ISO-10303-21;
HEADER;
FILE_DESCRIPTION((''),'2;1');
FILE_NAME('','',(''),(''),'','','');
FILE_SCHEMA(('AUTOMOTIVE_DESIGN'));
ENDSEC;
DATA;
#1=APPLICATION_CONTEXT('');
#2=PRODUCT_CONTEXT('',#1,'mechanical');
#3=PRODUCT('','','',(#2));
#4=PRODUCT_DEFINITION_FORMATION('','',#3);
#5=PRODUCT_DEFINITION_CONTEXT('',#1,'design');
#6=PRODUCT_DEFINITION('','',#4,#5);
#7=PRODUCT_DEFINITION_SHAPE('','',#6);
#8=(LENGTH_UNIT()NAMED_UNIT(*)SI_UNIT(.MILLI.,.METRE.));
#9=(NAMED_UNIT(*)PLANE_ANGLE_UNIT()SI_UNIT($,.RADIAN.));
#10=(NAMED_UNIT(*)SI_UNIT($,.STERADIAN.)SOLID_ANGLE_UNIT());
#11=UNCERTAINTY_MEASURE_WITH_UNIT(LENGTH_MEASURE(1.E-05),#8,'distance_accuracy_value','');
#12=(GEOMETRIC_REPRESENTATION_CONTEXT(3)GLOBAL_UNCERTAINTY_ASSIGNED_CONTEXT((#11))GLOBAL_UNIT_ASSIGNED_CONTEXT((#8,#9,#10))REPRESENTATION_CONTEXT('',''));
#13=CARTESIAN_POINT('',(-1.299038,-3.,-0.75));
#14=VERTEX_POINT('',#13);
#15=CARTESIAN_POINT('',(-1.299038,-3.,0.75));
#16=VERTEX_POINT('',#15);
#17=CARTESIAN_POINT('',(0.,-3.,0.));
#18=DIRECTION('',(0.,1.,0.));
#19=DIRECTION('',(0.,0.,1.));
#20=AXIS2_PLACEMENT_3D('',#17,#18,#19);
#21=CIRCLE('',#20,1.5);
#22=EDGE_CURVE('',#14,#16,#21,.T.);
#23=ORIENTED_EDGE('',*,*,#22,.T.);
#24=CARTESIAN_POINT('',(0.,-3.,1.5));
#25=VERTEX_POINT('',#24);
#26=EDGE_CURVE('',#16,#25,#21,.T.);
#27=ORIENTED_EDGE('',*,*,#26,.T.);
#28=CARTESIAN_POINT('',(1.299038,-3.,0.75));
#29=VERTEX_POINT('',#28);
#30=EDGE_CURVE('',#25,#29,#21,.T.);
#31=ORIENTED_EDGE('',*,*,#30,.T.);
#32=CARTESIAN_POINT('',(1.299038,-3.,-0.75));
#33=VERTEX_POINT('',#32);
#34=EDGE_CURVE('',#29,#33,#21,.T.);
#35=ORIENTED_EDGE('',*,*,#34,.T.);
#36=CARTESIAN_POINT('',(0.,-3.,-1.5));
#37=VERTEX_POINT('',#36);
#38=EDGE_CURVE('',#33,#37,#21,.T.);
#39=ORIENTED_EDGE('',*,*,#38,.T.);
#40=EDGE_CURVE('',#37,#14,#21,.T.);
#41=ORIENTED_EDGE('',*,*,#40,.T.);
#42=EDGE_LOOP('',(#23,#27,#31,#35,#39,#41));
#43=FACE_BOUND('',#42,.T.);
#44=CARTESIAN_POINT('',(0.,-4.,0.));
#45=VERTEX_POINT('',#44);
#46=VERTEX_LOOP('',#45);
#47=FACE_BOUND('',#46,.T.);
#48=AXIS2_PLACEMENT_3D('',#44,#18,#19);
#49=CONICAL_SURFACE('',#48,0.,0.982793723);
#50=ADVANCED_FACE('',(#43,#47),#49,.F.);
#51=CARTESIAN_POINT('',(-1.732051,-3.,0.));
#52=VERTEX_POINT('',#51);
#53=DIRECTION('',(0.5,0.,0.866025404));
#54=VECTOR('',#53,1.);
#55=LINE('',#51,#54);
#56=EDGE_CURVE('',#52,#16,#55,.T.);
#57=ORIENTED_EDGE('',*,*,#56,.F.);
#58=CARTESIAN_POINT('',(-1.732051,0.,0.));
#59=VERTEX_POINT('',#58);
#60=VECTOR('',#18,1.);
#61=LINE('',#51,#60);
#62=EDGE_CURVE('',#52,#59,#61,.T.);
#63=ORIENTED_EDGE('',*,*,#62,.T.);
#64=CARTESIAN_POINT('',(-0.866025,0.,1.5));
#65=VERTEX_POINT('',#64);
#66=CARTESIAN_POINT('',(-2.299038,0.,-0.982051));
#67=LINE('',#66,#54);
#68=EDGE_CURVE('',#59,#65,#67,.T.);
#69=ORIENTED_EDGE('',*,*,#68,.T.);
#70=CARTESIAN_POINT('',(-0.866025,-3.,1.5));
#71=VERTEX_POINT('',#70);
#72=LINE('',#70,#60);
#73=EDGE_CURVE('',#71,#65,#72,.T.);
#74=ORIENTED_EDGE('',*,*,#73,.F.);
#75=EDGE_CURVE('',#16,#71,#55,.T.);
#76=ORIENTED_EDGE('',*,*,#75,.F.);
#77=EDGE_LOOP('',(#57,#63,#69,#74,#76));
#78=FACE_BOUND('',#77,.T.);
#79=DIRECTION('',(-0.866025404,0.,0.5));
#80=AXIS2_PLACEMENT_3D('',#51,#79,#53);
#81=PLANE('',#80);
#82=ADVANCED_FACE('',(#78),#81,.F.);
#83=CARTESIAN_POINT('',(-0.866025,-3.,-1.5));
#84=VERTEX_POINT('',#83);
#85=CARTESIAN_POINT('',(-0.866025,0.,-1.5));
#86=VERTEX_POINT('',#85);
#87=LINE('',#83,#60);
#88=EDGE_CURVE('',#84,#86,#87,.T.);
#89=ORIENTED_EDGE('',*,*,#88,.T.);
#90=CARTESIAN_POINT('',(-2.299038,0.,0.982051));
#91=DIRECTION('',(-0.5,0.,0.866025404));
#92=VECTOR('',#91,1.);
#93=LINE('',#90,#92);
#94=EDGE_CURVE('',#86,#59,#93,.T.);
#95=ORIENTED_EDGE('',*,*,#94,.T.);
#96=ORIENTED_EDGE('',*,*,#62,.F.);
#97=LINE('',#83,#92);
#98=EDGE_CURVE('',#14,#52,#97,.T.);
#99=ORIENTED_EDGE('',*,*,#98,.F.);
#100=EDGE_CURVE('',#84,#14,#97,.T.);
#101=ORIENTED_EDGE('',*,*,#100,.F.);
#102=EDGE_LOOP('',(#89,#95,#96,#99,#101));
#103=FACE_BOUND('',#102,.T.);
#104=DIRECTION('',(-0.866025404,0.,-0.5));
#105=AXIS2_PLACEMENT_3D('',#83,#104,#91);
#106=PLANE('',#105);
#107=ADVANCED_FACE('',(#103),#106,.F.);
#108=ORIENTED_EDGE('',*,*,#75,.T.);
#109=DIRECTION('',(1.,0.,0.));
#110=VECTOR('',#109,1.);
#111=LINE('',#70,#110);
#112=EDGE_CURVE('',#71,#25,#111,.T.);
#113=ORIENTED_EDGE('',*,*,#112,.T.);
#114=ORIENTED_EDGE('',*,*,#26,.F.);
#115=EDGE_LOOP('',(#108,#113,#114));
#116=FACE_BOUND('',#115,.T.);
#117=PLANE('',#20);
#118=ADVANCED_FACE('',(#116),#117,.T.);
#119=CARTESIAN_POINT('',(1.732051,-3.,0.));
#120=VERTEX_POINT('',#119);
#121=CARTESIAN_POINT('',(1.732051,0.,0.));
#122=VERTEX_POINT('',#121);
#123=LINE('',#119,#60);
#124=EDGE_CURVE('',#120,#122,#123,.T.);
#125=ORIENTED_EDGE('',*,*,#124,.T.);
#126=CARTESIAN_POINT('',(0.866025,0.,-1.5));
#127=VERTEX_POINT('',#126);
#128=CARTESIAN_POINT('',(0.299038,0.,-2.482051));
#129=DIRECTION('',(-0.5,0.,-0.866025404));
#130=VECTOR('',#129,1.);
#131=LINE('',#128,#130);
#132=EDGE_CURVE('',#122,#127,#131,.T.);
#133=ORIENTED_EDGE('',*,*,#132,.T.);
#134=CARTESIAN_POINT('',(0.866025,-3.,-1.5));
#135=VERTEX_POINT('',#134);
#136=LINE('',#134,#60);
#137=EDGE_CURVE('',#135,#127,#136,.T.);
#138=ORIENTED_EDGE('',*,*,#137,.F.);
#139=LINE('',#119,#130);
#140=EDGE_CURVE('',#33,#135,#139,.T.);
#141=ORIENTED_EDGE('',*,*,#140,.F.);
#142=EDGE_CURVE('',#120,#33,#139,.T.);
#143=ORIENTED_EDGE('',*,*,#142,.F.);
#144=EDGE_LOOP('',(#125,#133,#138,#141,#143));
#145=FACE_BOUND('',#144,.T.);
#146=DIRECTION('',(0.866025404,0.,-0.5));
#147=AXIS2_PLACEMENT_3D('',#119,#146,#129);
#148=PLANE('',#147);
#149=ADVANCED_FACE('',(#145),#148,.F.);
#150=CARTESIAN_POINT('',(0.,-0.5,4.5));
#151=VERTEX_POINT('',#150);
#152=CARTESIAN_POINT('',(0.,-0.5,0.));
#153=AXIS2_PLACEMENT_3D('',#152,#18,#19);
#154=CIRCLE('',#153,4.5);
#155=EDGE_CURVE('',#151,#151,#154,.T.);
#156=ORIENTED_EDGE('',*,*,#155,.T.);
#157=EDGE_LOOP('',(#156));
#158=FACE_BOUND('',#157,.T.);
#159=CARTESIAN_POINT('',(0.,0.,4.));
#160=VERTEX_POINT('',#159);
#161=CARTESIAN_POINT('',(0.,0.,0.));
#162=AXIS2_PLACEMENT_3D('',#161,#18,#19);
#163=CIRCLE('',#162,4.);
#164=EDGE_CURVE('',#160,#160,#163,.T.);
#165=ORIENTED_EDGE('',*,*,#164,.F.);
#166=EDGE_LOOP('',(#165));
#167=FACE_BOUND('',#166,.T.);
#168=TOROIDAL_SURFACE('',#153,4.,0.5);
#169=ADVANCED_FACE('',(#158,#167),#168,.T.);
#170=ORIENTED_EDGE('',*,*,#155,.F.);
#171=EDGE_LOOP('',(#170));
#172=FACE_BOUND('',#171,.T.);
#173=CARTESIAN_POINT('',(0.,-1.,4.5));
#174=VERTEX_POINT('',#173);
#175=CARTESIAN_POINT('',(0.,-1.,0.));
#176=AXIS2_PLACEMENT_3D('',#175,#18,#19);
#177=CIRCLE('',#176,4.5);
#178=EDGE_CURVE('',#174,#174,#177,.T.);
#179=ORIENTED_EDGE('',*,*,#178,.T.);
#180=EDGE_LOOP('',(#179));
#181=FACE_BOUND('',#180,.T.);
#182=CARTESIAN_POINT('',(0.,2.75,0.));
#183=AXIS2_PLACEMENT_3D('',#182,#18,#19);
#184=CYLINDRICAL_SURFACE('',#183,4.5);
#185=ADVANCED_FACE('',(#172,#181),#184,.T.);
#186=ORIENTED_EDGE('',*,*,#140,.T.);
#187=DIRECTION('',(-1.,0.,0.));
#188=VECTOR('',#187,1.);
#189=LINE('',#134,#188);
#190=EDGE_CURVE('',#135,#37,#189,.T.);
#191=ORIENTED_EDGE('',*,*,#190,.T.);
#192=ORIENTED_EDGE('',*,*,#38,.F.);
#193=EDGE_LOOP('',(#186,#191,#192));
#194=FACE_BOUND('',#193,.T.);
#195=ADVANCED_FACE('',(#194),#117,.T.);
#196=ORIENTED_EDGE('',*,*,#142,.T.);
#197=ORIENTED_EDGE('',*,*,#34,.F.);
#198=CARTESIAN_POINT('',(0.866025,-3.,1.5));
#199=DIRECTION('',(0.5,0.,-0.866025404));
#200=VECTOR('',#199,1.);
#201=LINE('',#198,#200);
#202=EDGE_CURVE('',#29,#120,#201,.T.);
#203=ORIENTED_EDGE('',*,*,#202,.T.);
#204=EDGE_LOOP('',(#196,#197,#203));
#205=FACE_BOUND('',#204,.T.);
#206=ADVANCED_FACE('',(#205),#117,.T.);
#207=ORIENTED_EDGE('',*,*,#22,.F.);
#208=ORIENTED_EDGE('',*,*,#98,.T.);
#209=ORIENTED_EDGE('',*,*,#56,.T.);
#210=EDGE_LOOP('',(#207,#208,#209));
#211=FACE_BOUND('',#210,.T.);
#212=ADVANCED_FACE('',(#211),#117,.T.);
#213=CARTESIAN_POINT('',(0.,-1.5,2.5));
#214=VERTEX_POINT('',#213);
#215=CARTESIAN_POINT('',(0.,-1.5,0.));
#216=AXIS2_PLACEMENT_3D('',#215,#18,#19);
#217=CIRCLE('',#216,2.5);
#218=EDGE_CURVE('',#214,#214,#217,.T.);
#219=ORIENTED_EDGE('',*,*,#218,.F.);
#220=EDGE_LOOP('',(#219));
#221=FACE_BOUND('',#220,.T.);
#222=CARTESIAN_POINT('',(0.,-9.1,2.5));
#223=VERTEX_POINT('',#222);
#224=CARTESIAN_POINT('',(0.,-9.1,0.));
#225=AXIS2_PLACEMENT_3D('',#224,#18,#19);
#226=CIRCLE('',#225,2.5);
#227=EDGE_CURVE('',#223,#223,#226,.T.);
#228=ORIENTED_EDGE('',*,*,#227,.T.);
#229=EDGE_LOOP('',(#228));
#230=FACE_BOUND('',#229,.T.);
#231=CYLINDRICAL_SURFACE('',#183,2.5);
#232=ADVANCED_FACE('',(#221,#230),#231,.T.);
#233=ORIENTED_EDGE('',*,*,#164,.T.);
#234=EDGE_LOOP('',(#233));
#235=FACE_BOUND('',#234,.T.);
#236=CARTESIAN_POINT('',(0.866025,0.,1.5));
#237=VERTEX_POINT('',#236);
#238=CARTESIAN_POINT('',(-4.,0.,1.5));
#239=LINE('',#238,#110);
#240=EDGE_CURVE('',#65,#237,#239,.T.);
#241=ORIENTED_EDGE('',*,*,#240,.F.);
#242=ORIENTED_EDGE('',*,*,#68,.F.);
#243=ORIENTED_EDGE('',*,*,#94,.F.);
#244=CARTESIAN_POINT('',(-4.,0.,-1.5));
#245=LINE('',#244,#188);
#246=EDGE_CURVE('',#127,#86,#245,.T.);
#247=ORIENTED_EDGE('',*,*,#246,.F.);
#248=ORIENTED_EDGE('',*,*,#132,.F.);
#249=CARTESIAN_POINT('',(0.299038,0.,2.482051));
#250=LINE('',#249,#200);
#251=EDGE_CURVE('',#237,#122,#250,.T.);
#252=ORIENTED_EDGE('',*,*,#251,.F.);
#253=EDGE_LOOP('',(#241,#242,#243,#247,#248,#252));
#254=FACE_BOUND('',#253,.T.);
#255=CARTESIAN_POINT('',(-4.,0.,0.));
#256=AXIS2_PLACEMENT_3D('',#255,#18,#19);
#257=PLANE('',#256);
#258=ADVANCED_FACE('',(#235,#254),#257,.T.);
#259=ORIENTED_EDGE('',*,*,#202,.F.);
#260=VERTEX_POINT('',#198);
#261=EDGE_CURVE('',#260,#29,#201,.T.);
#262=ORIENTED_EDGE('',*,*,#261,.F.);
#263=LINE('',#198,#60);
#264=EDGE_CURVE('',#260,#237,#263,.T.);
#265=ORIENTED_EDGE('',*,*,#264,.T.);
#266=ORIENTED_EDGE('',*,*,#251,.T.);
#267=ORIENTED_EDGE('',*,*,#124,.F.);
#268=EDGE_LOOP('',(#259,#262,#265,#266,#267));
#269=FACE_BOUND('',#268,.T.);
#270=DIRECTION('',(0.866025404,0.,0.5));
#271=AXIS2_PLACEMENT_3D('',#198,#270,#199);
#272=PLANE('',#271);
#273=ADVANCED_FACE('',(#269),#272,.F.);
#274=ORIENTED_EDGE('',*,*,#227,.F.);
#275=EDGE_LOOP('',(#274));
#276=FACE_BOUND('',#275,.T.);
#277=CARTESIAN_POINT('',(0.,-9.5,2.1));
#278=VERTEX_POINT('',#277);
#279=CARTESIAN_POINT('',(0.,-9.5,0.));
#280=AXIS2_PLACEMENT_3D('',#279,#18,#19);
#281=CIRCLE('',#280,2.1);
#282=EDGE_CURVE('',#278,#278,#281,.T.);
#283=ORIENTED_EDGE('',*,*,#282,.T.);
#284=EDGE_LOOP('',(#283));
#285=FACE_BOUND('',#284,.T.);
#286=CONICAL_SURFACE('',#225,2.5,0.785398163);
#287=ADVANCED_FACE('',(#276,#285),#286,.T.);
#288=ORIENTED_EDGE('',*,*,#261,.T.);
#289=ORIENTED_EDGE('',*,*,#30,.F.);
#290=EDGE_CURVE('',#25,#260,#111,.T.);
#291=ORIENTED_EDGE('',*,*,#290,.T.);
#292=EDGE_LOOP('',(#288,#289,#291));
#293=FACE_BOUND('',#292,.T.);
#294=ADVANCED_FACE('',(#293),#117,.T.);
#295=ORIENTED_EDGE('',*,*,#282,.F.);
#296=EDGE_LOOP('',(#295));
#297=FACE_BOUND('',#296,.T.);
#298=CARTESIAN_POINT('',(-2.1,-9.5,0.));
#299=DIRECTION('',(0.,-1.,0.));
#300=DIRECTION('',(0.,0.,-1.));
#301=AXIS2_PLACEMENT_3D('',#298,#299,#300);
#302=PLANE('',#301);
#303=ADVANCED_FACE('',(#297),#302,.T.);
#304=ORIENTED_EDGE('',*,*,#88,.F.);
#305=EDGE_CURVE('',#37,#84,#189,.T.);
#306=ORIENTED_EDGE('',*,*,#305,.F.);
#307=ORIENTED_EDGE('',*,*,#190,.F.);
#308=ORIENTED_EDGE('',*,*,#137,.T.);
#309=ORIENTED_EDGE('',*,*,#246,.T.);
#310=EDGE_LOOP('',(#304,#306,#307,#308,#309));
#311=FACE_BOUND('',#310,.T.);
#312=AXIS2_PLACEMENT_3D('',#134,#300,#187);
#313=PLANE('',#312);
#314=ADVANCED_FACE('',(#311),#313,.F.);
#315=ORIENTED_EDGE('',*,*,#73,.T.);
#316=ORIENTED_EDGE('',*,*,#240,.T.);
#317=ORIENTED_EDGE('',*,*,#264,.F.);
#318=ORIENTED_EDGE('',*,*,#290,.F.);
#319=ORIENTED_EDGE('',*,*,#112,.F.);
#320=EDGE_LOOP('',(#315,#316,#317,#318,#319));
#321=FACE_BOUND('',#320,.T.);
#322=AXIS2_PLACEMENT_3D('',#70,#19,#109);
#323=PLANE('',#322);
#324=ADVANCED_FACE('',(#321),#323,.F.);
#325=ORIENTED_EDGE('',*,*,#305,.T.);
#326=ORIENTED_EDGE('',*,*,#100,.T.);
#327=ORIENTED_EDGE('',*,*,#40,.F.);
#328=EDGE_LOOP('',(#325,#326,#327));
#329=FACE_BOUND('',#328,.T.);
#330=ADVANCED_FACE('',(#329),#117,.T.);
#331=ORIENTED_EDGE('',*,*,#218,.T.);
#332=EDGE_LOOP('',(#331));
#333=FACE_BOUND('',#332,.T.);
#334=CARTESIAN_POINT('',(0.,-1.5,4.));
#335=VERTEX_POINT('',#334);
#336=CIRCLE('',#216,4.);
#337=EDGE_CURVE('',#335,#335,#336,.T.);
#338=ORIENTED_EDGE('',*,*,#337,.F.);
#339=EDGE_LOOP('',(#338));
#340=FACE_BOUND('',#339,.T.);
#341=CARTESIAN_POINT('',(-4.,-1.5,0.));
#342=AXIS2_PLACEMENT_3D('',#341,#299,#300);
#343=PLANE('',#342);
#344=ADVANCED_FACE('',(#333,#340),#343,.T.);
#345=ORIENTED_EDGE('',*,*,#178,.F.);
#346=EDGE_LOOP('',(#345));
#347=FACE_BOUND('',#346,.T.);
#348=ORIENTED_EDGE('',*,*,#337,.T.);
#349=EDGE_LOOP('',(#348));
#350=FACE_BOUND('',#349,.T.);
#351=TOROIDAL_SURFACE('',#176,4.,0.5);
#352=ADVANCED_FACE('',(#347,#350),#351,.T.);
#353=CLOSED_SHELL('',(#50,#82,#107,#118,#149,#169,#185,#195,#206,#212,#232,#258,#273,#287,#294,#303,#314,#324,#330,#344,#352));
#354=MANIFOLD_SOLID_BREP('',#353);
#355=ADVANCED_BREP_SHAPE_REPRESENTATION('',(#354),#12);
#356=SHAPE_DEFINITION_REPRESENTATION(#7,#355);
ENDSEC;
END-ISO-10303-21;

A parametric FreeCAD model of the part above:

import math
import FreeCAD as App
import Part
import Sketcher

V = App.Vector
Q = App.Units.Quantity

doc = App.newDocument("Part")
params = doc.addObject("Spreadsheet::Sheet", "Params")
for row, (alias, value) in enumerate([
    ("sketch1_radius", "0.5 mm"),
    ("sketch1_height", "3 mm"),
    ("sketch1_width", "1.5 mm"),
    ("sketch1_width2", "2.1 mm"),
    ("sketch1_width3", "2.5 mm"),
    ("revolution_angle", "360 deg"),
    ("pocket1_length", "3 mm"),
], start=1):
    params.set(f"A{row}", alias)
    params.set(f"B{row}", "=" + value)
    params.setAlias(f"B{row}", alias)

body = doc.addObject("PartDesign::Body", "Body")

# Sketch on XY plane
sketch1 = body.newObject("Sketcher::SketchObject", "Sketch")
sketch1.AttachmentSupport = (doc.getObject("XY_Plane"), [""])
sketch1.MapMode = "FlatFace"
sketch1.addGeometry([
    Part.LineSegment(V(-4.5, -0.5, 0), V(-4.5, -1, 0)),  # 0
    Part.ArcOfCircle(Part.Circle(V(-4, -1, 0), V(0, 0, 1), 0.5), math.radians(180), math.radians(270)),  # 1
    Part.LineSegment(V(-4, -1.5, 0), V(-2.5, -1.5, 0)),  # 2
    Part.LineSegment(V(-2.5, -1.5, 0), V(-2.5, -9.1, 0)),  # 3
    Part.LineSegment(V(-2.5, -9.1, 0), V(-2.1, -9.5, 0)),  # 4
    Part.LineSegment(V(-2.1, -9.5, 0), V(0, -9.5, 0)),  # 5
    Part.LineSegment(V(0, -9.5, 0), V(0, -4, 0)),  # 6
    Part.LineSegment(V(0, -4, 0), V(-1.5, -3, 0)),  # 7
    Part.LineSegment(V(-1.5, -3, 0), V(-1.5, 0, 0)),  # 8
    Part.LineSegment(V(-1.5, 0, 0), V(-4, 0, 0)),  # 9
    Part.ArcOfCircle(Part.Circle(V(-4, -0.5, 0), V(0, 0, 1), 0.5), math.radians(90), math.radians(180)),  # 10
], False)
sketch1.addConstraint([
    Sketcher.Constraint("Tangent", 0, 2, 1, 1),
    Sketcher.Constraint("Tangent", 1, 2, 2, 1),
    Sketcher.Constraint("Coincident", 2, 2, 3, 1),
    Sketcher.Constraint("Coincident", 3, 2, 4, 1),
    Sketcher.Constraint("Coincident", 4, 2, 5, 1),
    Sketcher.Constraint("Coincident", 5, 2, 6, 1),
    Sketcher.Constraint("Coincident", 6, 2, 7, 1),
    Sketcher.Constraint("Coincident", 7, 2, 8, 1),
    Sketcher.Constraint("Coincident", 8, 2, 9, 1),
    Sketcher.Constraint("Tangent", 9, 2, 10, 1),
    Sketcher.Constraint("Tangent", 10, 2, 0, 1),
    Sketcher.Constraint("Vertical", 0),
    Sketcher.Constraint("Horizontal", 2),
    Sketcher.Constraint("Vertical", 3),
    Sketcher.Constraint("Horizontal", 5),
    Sketcher.Constraint("Vertical", 6),
    Sketcher.Constraint("Vertical", 8),
    Sketcher.Constraint("Horizontal", 9),
    Sketcher.Constraint("Equal", 1, 10),
    Sketcher.Constraint("PointOnObject", 5, 2, -2),
    Sketcher.Constraint("PointOnObject", 8, 2, -1),
    Sketcher.Constraint("Radius", 1, 0.5),
    Sketcher.Constraint("DistanceY", 8, 1, 8, 2, 3.0),
    Sketcher.Constraint("Angle", 4, Q("-45 deg")),
    Sketcher.Constraint("DistanceX", 2, 1, 2, 2, 1.5),
    Sketcher.Constraint("DistanceX", 5, 1, 5, 2, 2.1),
    Sketcher.Constraint("DistanceX", 9, 2, 9, 1, 2.5),
    Sketcher.Constraint("DistanceY", 0, 2, 0, 1, 0.5),
    Sketcher.Constraint("DistanceY", 3, 2, 3, 1, 7.6),
    Sketcher.Constraint("DistanceY", 6, 1, 6, 2, 5.5),
    Sketcher.Constraint("DistanceX", 1, 3, -1, 1, 4.0),
])
sketch1.setExpression("Constraints[21]", "Params.sketch1_radius")
sketch1.setExpression("Constraints[22]", "Params.sketch1_height")
sketch1.setExpression("Constraints[24]", "Params.sketch1_width")
sketch1.setExpression("Constraints[25]", "Params.sketch1_width2")
sketch1.setExpression("Constraints[26]", "Params.sketch1_width3")
revolution = body.newObject("PartDesign::Revolution", "Revolution")
revolution.Profile = sketch1
revolution.ReferenceAxis = (sketch1, ["V_Axis"])
revolution.setExpression("Angle", "Params.revolution_angle")

# Sketch on XZ plane
sketch2 = body.newObject("Sketcher::SketchObject", "Sketch001")
sketch2.AttachmentSupport = (doc.getObject("XZ_Plane"), [""])
sketch2.MapMode = "FlatFace"
sketch2.addGeometry([
    Part.LineSegment(V(-0.9, 1.5, 0), V(0.9, 1.5, 0)),  # 0
    Part.LineSegment(V(0.9, 1.5, 0), V(1.7, 0, 0)),  # 1
    Part.LineSegment(V(1.7, 0, 0), V(0.9, -1.5, 0)),  # 2
    Part.LineSegment(V(0.9, -1.5, 0), V(-0.9, -1.5, 0)),  # 3
    Part.LineSegment(V(-0.9, -1.5, 0), V(-1.7, 0, 0)),  # 4
    Part.LineSegment(V(-1.7, 0, 0), V(-0.9, 1.5, 0)),  # 5
], False)
sketch2.addConstraint([
    Sketcher.Constraint("Coincident", 0, 2, 1, 1),
    Sketcher.Constraint("Coincident", 1, 2, 2, 1),
    Sketcher.Constraint("Coincident", 2, 2, 3, 1),
    Sketcher.Constraint("Coincident", 3, 2, 4, 1),
    Sketcher.Constraint("Coincident", 4, 2, 5, 1),
    Sketcher.Constraint("Coincident", 5, 2, 0, 1),
    Sketcher.Constraint("Horizontal", 0),
    Sketcher.Constraint("Horizontal", 3),
    Sketcher.Constraint("Symmetric", 0, 2, 3, 2, -1, 1),
    Sketcher.Constraint("Symmetric", 1, 2, 4, 2, -1, 1),
    Sketcher.Constraint("PointOnObject", 1, 2, -1),
    Sketcher.Constraint("Parallel", 2, 5),
    Sketcher.Constraint("Vertical", 0, 2, 2, 2),
    Sketcher.Constraint("Angle", 1, Q("-60 deg")),
    Sketcher.Constraint("DistanceY", 2, 2, 0, 2, 3.0),
    Sketcher.Constraint("DistanceX", 0, 1, 0, 2, 1.732051),
])
pocket1 = body.newObject("PartDesign::Pocket", "Pocket")
pocket1.Profile = sketch2
pocket1.setExpression("Length", "Params.pocket1_length")
pocket1.Reversed = True

doc.recompute()
